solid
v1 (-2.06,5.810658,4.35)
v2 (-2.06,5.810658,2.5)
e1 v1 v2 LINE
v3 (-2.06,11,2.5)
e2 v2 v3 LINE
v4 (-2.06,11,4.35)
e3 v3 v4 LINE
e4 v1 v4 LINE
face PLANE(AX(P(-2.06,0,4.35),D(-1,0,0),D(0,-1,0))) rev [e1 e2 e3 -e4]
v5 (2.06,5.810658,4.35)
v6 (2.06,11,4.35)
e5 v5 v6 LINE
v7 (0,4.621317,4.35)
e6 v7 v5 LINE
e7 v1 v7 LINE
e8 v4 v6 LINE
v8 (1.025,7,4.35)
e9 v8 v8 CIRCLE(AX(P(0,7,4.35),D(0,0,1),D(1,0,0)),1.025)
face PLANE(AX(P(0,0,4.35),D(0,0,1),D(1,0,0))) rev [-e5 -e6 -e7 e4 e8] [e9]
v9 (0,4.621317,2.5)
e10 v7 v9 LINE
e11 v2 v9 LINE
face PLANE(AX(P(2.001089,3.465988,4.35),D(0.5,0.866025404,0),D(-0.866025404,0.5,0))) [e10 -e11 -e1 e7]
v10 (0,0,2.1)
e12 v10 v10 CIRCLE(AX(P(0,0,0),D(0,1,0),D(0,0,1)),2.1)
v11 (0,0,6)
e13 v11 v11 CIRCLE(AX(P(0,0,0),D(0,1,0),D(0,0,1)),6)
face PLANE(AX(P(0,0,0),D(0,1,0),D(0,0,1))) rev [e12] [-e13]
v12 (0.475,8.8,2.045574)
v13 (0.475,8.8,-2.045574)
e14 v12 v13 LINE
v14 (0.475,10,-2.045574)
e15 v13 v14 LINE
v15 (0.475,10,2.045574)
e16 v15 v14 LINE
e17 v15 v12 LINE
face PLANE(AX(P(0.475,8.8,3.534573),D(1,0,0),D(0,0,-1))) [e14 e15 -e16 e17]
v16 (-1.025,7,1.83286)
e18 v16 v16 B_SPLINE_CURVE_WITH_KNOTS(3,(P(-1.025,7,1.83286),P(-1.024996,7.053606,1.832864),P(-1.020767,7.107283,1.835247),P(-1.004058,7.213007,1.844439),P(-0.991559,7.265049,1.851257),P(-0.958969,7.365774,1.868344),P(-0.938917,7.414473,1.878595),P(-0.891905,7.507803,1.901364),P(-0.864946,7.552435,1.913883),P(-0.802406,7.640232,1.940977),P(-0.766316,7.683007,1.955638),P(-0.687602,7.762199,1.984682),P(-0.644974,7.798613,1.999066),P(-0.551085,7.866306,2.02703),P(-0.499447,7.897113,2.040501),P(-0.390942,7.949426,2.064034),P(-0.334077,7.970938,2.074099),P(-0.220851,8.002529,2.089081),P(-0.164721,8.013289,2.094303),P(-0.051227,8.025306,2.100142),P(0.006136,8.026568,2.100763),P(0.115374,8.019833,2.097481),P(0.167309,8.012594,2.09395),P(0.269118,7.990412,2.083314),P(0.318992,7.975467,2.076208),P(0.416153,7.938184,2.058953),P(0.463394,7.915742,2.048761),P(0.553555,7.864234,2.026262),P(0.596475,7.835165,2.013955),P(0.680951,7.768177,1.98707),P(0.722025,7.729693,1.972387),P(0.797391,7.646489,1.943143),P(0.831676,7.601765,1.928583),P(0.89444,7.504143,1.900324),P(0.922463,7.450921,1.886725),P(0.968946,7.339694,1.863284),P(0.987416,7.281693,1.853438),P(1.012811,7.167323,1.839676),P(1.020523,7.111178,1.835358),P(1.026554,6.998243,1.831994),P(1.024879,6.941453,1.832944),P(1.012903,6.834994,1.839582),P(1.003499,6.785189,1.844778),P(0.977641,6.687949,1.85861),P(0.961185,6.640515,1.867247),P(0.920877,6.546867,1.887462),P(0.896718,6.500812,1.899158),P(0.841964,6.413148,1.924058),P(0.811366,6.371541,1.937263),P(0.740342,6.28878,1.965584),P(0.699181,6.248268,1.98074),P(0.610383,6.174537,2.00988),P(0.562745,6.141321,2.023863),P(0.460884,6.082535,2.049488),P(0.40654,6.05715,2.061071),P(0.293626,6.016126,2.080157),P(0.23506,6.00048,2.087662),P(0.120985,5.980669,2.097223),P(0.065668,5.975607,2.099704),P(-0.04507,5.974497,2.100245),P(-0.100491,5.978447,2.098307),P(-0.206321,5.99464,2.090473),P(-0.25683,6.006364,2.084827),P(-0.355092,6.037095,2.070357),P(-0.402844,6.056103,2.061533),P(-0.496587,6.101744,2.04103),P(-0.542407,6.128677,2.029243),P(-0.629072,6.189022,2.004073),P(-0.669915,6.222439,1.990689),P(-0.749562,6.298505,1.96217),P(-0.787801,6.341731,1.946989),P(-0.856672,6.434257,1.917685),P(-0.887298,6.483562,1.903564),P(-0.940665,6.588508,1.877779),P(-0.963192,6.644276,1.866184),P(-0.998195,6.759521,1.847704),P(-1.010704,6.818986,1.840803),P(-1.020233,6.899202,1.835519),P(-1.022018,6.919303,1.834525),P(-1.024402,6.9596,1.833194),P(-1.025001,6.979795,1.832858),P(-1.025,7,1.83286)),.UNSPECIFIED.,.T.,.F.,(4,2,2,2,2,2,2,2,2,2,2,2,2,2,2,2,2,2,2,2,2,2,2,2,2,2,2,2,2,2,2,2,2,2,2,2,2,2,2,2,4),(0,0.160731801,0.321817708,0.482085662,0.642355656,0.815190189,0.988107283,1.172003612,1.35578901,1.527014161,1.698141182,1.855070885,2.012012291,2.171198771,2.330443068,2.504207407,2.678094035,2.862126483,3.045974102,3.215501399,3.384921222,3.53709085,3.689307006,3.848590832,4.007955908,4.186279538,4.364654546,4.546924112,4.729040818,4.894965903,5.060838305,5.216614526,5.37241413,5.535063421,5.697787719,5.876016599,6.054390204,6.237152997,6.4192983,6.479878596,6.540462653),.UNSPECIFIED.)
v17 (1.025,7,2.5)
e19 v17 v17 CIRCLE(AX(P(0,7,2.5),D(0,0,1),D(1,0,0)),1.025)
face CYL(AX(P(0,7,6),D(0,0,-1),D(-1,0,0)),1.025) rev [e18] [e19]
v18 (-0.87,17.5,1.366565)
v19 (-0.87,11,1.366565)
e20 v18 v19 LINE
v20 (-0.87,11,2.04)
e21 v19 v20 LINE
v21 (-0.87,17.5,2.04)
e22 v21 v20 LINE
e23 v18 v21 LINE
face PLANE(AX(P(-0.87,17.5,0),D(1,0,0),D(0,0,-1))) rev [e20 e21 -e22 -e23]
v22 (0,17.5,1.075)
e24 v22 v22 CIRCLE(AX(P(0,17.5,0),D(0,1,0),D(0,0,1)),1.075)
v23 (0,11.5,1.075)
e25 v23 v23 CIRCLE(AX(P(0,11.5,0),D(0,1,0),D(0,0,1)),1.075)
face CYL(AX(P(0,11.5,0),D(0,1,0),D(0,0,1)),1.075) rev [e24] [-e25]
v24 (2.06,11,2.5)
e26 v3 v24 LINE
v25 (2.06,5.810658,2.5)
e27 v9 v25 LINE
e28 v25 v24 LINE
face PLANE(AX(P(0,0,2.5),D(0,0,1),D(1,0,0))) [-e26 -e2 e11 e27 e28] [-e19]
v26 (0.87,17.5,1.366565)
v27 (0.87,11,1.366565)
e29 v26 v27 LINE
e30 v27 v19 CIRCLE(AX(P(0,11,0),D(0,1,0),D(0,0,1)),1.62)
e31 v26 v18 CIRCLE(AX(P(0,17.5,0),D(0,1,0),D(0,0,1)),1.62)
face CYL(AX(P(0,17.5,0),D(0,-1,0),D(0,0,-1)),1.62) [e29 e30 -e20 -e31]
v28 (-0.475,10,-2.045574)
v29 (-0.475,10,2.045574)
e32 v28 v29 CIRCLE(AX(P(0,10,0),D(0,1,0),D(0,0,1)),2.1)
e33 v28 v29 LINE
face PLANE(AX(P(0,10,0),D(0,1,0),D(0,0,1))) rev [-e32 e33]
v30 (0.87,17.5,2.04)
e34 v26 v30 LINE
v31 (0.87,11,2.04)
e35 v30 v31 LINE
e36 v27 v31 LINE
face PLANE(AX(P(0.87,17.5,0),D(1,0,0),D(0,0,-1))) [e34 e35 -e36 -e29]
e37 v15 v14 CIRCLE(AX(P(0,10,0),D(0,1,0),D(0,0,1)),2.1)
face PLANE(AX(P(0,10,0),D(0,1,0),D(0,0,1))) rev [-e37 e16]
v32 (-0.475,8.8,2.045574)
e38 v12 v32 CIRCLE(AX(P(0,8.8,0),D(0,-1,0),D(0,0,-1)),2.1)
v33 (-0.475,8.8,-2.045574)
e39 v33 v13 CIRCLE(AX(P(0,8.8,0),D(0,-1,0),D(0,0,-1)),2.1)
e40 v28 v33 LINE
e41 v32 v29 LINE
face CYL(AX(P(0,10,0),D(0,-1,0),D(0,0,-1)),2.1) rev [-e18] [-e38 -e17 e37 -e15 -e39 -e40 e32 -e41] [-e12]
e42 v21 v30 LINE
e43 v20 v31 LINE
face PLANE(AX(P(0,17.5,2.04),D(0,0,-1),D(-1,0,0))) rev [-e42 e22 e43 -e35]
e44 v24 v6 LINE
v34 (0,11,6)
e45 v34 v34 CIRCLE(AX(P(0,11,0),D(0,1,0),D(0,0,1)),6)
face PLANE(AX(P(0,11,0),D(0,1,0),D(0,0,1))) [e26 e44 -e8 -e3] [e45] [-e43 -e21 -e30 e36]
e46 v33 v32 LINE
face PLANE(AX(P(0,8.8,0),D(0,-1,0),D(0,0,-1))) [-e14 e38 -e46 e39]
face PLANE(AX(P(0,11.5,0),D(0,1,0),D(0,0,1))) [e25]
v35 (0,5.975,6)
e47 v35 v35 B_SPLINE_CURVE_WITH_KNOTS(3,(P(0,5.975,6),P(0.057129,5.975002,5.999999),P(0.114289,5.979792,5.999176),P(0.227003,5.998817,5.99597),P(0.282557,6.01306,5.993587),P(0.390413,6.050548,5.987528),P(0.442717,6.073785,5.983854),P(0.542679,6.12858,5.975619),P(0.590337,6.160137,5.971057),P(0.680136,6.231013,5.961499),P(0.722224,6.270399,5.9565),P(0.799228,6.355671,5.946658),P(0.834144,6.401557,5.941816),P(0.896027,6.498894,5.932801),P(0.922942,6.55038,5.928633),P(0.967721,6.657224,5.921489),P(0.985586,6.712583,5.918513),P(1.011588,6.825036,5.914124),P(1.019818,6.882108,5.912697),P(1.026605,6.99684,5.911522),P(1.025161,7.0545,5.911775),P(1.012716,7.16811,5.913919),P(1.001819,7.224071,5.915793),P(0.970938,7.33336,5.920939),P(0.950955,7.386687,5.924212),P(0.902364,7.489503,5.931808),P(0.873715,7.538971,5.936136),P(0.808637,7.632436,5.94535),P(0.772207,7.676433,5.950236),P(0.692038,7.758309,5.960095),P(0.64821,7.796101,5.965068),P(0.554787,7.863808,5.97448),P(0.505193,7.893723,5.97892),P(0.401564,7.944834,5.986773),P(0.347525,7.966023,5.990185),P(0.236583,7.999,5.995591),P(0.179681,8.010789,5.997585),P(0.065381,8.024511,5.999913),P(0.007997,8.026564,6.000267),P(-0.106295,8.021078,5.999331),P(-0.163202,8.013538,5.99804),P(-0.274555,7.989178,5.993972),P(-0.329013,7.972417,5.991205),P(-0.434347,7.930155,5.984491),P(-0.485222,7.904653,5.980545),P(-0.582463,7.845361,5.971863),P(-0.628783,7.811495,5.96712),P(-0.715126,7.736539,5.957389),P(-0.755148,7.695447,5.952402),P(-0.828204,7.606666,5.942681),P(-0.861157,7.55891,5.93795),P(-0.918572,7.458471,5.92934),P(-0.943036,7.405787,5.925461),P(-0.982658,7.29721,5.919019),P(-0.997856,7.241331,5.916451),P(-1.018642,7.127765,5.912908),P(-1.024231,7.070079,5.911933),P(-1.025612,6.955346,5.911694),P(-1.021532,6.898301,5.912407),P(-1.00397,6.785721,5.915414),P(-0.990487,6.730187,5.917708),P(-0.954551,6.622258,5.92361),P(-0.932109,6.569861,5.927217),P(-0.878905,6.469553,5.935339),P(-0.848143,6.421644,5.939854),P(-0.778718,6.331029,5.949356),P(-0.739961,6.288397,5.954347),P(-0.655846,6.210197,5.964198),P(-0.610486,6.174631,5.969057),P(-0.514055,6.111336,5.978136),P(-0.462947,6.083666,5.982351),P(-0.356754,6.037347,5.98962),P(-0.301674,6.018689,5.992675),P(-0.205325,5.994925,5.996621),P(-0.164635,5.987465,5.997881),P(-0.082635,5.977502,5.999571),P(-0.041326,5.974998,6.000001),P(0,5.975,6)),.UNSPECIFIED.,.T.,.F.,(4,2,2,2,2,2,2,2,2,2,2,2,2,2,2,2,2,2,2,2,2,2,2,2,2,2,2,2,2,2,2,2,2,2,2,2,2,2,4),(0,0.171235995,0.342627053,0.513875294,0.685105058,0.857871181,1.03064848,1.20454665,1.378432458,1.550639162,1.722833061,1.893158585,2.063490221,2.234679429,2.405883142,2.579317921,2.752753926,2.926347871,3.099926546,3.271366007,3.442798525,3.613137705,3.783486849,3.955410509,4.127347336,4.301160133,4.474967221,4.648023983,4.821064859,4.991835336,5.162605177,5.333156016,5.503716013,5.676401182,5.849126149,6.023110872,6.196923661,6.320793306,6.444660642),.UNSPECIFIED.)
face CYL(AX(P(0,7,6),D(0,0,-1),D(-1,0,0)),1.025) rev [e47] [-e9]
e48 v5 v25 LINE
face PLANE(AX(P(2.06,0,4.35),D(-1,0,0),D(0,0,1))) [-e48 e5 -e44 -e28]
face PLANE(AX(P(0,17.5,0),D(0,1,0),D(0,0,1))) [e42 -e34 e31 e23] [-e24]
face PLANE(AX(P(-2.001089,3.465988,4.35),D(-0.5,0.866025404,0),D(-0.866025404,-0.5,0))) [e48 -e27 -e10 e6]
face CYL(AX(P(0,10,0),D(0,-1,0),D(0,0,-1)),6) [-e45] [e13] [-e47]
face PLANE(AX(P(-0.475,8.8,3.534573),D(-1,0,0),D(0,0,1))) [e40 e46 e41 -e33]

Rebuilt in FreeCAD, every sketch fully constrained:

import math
import FreeCAD as App
import Part
import Sketcher
from FreeCAD import Vector
Q = App.Units.Quantity


def add_polygon(sketch, points):
    """Adds a closed chain of lines whose ends are joined by coincident constraints."""
    first, n = sketch.GeometryCount, len(points)
    for a, b in zip(points, points[1:] + points[:1]):
        sketch.addGeometry(Part.LineSegment(App.Vector(*a, 0), App.Vector(*b, 0)), False)
    for i in range(n):
        sketch.addConstraint(Sketcher.Constraint("Coincident", first + i, 2, first + (i + 1) % n, 1))

doc = App.newDocument("Part")
body = doc.addObject("PartDesign::Body", "Body")

# Sketch on XZ plane
sketch1 = body.newObject("Sketcher::SketchObject", "Sketch")
sketch1.AttachmentSupport = (doc.getObject("XZ_Plane"), [""])
sketch1.MapMode = "FlatFace"
sketch1.addGeometry(Part.Circle(Vector(0, 0, 0), Vector(0, 0, 1), 6), False)
sketch1.addConstraint(Sketcher.Constraint("Coincident", 0, 3, -1, 1))
sketch1.addConstraint(Sketcher.Constraint("Diameter", 0, 12.0))
pad1 = body.newObject("PartDesign::Pad", "Pad")
pad1.Profile = sketch1
pad1.Length = 10
pad1.Reversed = True

# Sketch on XY plane
sketch2 = body.newObject("Sketcher::SketchObject", "Sketch001")
sketch2.AttachmentSupport = (doc.getObject("XY_Plane"), [""])
sketch2.MapMode = "FlatFace"
sketch2.addGeometry(Part.Circle(Vector(0, 7, 0), Vector(0, 0, 1), 1), False)
sketch2.addConstraint(Sketcher.Constraint("PointOnObject", 0, 3, -2))
sketch2.addConstraint(Sketcher.Constraint("Diameter", 0, 2.05))
sketch2.addConstraint(Sketcher.Constraint("DistanceY", -1, 1, 0, 3, 7.0))
pocket1 = body.newObject("PartDesign::Pocket", "Pocket")
pocket1.Profile = sketch2
pocket1.Type = "ThroughAll"
pocket1.Reversed = True

# Sketch on XZ plane
sketch3 = body.newObject("Sketcher::SketchObject", "Sketch002")
sketch3.AttachmentSupport = (doc.getObject("XZ_Plane"), [""])
sketch3.MapMode = "FlatFace"
sketch3.addGeometry(Part.Circle(Vector(0, 0, 0), Vector(0, 0, 1), 2.1), False)
sketch3.addConstraint(Sketcher.Constraint("Coincident", 0, 3, -1, 1))
sketch3.addConstraint(Sketcher.Constraint("Diameter", 0, 4.2))
pocket2 = body.newObject("PartDesign::Pocket", "Pocket001")
pocket2.Profile = sketch3
pocket2.Type = "ThroughAll"

# Sketch on XZ plane
sketch4 = body.newObject("Sketcher::SketchObject", "Sketch003")
sketch4.AttachmentSupport = (doc.getObject("XZ_Plane"), [""])
sketch4.MapMode = "FlatFace"
sketch4.AttachmentOffset = App.Placement(Vector(0, 0, -10), App.Rotation())
add_polygon(sketch4, [(-0.5, -3.5), (-0.5, 3.5), (0.5, 3.5), (0.5, -3.5)])  # lines 0-3
sketch4.addConstraint(Sketcher.Constraint("Vertical", 0))
sketch4.addConstraint(Sketcher.Constraint("Horizontal", 1))
sketch4.addConstraint(Sketcher.Constraint("Vertical", 2))
sketch4.addConstraint(Sketcher.Constraint("Horizontal", 3))
sketch4.addConstraint(Sketcher.Constraint("Symmetric", 0, 2, 2, 2, -1, 1))
sketch4.addConstraint(Sketcher.Constraint("DistanceX", 1, 1, 1, 2, 0.95))
sketch4.addConstraint(Sketcher.Constraint("DistanceY", 0, 1, 0, 2, 7.069147))
pad2 = body.newObject("PartDesign::Pad", "Pad001")
pad2.Profile = sketch4
pad2.Length = 1.2

# Sketch on XZ plane
sketch5 = body.newObject("Sketcher::SketchObject", "Sketch004")
sketch5.AttachmentSupport = (doc.getObject("XZ_Plane"), [""])
sketch5.MapMode = "FlatFace"
sketch5.AttachmentOffset = App.Placement(Vector(0, 0, -10), App.Rotation())
sketch5.addGeometry(Part.Circle(Vector(0, 0, 0), Vector(0, 0, 1), 6), False)
sketch5.addConstraint(Sketcher.Constraint("Coincident", 0, 3, -1, 1))
sketch5.addConstraint(Sketcher.Constraint("Diameter", 0, 12.0))
pad3 = body.newObject("PartDesign::Pad", "Pad002")
pad3.Profile = sketch5
pad3.Length = 1
pad3.Reversed = True

# Sketch on XZ plane
sketch6 = body.newObject("Sketcher::SketchObject", "Sketch005")
sketch6.AttachmentSupport = (doc.getObject("XZ_Plane"), [""])
sketch6.MapMode = "FlatFace"
sketch6.AttachmentOffset = App.Placement(Vector(0, 0, -11), App.Rotation())
sketch6.addGeometry(Part.ArcOfCircle(Part.Circle(Vector(0, 0, 0), Vector(0, 0, 1), 1.6), math.radians(122), math.radians(418)), False)
sketch6.addGeometry(Part.LineSegment(Vector(-0.9, 1.4, 0), Vector(-0.9, 2, 0)), False)
sketch6.addGeometry(Part.LineSegment(Vector(-0.9, 2, 0), Vector(0.9, 2, 0)), False)
sketch6.addGeometry(Part.LineSegment(Vector(0.9, 2, 0), Vector(0.9, 1.4, 0)), False)
sketch6.addConstraint(Sketcher.Constraint("Coincident", 0, 1, 1, 1))
sketch6.addConstraint(Sketcher.Constraint("Coincident", 1, 2, 2, 1))
sketch6.addConstraint(Sketcher.Constraint("Coincident", 2, 2, 3, 1))
sketch6.addConstraint(Sketcher.Constraint("Coincident", 3, 2, 0, 2))
sketch6.addConstraint(Sketcher.Constraint("Vertical", 1))
sketch6.addConstraint(Sketcher.Constraint("Horizontal", 2))
sketch6.addConstraint(Sketcher.Constraint("Vertical", 3))
sketch6.addConstraint(Sketcher.Constraint("Coincident", 0, 3, -1, 1))
sketch6.addConstraint(Sketcher.Constraint("Horizontal", 0, 1, 3, 2))
sketch6.addConstraint(Sketcher.Constraint("Radius", 0, 1.62))
sketch6.addConstraint(Sketcher.Constraint("DistanceX", 2, 1, 2, 2, 1.74))
sketch6.addConstraint(Sketcher.Constraint("DistanceY", -1, 1, 1, 2, 2.04))
pad4 = body.newObject("PartDesign::Pad", "Pad003")
pad4.Profile = sketch6
pad4.Length = 6.5
pad4.Reversed = True

# Sketch on XZ plane
sketch7 = body.newObject("Sketcher::SketchObject", "Sketch006")
sketch7.AttachmentSupport = (doc.getObject("XZ_Plane"), [""])
sketch7.MapMode = "FlatFace"
sketch7.AttachmentOffset = App.Placement(Vector(0, 0, -17.5), App.Rotation())
sketch7.addGeometry(Part.Circle(Vector(0, 0, 0), Vector(0, 0, 1), 1.1), False)
sketch7.addConstraint(Sketcher.Constraint("Coincident", 0, 3, -1, 1))
sketch7.addConstraint(Sketcher.Constraint("Diameter", 0, 2.15))
pocket3 = body.newObject("PartDesign::Pocket", "Pocket002")
pocket3.Profile = sketch7
pocket3.Length = 6
pocket3.Reversed = True

# Sketch on XY plane
sketch8 = body.newObject("Sketcher::SketchObject", "Sketch007")
sketch8.AttachmentSupport = (doc.getObject("XY_Plane"), [""])
sketch8.MapMode = "FlatFace"
sketch8.AttachmentOffset = App.Placement(Vector(0, 0, 2.5), App.Rotation())
add_polygon(sketch8, [(0, 4.6), (2.1, 5.8), (2.1, 11.4), (-2.1, 11.4), (-2.1, 5.8)])  # lines 0-4
sketch8.addConstraint(Sketcher.Constraint("Vertical", 1))
sketch8.addConstraint(Sketcher.Constraint("Horizontal", 2))
sketch8.addConstraint(Sketcher.Constraint("Vertical", 3))
sketch8.addConstraint(Sketcher.Constraint("Symmetric", 0, 2, 3, 2, -2))
sketch8.addConstraint(Sketcher.Constraint("PointOnObject", 4, 2, -2))
sketch8.addConstraint(Sketcher.Constraint("Angle", 0, Q("30 deg")))
sketch8.addConstraint(Sketcher.Constraint("DistanceX", 2, 2, 2, 1, 4.12))
sketch8.addConstraint(Sketcher.Constraint("DistanceY", 1, 1, 1, 2, 5.552447))
sketch8.addConstraint(Sketcher.Constraint("DistanceY", -1, 1, 0, 2, 5.810658))
pocket4 = body.newObject("PartDesign::Pocket", "Pocket003")
pocket4.Profile = sketch8
pocket4.Length = 1.85
pocket4.Reversed = True

doc.recompute()
